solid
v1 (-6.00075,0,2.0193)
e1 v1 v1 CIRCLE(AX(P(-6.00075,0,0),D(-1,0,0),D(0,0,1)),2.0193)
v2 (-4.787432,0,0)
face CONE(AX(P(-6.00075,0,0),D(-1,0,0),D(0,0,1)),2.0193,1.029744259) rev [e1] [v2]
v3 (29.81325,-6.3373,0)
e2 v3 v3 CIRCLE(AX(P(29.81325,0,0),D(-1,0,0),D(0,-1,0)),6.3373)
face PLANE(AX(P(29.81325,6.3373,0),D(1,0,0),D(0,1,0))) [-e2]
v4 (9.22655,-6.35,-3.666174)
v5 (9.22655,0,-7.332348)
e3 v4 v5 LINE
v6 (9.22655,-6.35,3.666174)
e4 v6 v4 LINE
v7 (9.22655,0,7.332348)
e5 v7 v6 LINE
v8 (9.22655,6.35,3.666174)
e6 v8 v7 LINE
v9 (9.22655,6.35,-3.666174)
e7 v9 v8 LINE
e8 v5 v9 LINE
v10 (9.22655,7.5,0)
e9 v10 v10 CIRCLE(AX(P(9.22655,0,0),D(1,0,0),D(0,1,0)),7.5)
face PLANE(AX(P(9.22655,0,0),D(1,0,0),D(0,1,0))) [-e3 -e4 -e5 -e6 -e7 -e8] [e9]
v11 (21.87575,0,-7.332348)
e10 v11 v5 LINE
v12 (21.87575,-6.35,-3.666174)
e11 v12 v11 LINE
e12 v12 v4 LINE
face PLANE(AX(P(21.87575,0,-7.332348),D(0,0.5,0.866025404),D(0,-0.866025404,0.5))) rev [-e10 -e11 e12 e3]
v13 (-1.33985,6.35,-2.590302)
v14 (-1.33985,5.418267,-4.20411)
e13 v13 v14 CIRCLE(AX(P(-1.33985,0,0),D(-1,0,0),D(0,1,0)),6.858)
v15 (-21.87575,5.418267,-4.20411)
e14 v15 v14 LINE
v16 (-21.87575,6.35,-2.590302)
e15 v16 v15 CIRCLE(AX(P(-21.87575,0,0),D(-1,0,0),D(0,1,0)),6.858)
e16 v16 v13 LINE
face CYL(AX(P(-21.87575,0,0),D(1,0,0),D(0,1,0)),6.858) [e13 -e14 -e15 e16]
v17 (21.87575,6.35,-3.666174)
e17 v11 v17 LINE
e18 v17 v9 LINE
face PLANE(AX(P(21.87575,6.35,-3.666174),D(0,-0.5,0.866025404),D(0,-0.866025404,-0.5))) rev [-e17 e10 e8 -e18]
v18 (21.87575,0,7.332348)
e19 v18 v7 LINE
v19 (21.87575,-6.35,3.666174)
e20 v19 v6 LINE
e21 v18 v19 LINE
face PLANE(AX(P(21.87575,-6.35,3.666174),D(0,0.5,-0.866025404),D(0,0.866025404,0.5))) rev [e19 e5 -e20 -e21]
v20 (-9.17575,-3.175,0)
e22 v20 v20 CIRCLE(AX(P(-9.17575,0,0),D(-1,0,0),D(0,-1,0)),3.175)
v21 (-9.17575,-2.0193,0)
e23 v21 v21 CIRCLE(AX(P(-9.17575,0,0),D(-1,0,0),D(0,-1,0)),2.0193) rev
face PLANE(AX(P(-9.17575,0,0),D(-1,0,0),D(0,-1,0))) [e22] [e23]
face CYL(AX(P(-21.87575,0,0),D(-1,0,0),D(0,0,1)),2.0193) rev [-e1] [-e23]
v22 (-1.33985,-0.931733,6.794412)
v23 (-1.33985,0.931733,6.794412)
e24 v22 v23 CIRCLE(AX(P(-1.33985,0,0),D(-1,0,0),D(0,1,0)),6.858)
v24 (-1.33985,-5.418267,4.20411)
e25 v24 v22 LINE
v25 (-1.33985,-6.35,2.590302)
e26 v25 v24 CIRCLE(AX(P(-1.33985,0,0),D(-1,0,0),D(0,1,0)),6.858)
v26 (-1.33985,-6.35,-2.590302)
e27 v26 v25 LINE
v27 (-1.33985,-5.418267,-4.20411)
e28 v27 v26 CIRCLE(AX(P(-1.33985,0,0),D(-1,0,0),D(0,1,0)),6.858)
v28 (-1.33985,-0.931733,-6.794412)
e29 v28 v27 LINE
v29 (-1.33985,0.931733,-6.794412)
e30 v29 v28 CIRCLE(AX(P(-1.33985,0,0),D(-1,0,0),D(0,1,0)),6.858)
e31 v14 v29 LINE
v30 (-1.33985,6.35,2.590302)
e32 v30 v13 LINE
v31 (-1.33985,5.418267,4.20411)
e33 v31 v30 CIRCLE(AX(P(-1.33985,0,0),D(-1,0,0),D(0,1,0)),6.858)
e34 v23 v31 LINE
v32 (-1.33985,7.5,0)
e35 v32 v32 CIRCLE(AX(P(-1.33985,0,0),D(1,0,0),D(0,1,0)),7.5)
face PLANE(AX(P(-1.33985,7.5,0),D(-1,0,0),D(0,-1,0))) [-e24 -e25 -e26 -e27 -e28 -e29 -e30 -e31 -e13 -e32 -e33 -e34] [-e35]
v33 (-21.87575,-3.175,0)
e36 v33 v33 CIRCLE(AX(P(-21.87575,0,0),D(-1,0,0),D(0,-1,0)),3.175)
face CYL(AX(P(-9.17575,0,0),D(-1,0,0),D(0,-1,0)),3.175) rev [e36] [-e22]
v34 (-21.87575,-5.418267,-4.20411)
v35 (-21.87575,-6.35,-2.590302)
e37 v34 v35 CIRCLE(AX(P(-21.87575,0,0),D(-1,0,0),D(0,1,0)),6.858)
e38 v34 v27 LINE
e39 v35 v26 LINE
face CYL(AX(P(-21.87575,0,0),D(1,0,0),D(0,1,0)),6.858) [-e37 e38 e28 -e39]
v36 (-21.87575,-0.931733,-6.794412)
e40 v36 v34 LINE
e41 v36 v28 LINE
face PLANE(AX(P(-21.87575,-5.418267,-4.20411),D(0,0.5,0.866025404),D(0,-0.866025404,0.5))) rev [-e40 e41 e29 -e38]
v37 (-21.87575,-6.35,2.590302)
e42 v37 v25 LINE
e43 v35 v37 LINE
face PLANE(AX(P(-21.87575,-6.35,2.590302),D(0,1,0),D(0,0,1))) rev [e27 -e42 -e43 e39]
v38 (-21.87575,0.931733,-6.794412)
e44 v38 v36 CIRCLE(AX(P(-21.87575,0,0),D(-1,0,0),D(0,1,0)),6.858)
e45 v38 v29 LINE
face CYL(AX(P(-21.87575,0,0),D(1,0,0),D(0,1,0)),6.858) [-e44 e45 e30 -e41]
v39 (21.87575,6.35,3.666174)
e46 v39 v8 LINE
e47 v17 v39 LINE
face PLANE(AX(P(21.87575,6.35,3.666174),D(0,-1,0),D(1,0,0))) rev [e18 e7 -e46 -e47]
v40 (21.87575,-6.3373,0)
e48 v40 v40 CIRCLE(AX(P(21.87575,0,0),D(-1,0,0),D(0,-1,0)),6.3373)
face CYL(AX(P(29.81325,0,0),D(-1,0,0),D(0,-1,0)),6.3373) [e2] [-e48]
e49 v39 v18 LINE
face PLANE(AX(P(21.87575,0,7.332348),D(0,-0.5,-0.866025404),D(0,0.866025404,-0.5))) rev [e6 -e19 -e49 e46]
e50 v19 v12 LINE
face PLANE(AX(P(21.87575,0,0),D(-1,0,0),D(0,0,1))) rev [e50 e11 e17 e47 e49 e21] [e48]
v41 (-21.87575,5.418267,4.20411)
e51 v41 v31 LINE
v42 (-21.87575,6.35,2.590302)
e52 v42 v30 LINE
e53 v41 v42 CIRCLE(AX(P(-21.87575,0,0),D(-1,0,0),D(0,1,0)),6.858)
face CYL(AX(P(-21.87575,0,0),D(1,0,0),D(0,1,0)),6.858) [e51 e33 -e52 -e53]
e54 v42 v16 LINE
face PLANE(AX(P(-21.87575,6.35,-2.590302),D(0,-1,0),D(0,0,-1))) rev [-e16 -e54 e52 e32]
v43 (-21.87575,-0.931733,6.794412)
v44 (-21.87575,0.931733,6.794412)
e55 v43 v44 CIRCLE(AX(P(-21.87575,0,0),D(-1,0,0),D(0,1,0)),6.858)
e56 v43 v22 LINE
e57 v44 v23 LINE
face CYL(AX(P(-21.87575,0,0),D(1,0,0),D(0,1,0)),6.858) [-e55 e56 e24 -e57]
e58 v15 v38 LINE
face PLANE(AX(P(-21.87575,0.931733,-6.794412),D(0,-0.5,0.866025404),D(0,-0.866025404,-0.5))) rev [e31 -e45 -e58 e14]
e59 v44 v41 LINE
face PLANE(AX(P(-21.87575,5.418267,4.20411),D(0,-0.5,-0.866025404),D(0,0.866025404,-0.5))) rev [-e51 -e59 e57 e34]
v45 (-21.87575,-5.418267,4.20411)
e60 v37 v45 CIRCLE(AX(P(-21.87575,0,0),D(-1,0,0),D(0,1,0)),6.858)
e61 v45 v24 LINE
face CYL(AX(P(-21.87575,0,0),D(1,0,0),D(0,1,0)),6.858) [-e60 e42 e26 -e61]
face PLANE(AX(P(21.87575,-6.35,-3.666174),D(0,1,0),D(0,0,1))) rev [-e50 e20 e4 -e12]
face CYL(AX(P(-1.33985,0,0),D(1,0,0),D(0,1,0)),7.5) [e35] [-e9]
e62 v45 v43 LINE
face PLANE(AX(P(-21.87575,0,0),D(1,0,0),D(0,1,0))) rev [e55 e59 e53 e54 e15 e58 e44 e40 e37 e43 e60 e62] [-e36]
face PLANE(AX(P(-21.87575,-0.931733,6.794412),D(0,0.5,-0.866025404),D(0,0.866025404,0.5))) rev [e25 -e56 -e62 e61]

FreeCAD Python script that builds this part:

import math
import FreeCAD as App
import Part
import Sketcher
from FreeCAD import Vector
Q = App.Units.Quantity


def add_polygon(sketch, points):
    """Adds a closed chain of lines whose ends are joined by coincident constraints."""
    first, n = sketch.GeometryCount, len(points)
    for a, b in zip(points, points[1:] + points[:1]):
        sketch.addGeometry(Part.LineSegment(App.Vector(*a, 0), App.Vector(*b, 0)), False)
    for i in range(n):
        sketch.addConstraint(Sketcher.Constraint("Coincident", first + i, 2, first + (i + 1) % n, 1))

doc = App.newDocument("Part")
body = doc.addObject("PartDesign::Body", "Body")

sketch1 = body.newObject("Sketcher::SketchObject", "Sketch")
sketch1.AttachmentSupport = (doc.getObject("XY_Plane"), [""])
sketch1.MapMode = "FlatFace"
add_polygon(sketch1, [(-1, 8), (-1, 0), (9, 0), (9, 8)])
sketch1.addConstraint([
    Sketcher.Constraint("Vertical", 0),
    Sketcher.Constraint("Horizontal", 1),
    Sketcher.Constraint("Vertical", 2),
    Sketcher.Constraint("Horizontal", 3),
    Sketcher.Constraint("PointOnObject", 0, 2, -1),
    Sketcher.Constraint("DistanceX", 1, 1, 1, 2, Q("0.416 in")),
    Sketcher.Constraint("DistanceY", 0, 2, 0, 1, 7.5),
    Sketcher.Constraint("DistanceX", 0, 2, -1, 1, 1.33985),
])
revolution = body.newObject("PartDesign::Revolution", "Revolution")
revolution.Profile = sketch1
revolution.ReferenceAxis = (sketch1, ["H_Axis"])
revolution.Angle = 360

sketch2 = body.newObject("Sketcher::SketchObject", "Sketch001")
sketch2.AttachmentSupport = (doc.getObject("YZ_Plane"), [""])
sketch2.MapMode = "FlatFace"
sketch2.AttachmentOffset = App.Placement(Vector(0, 0, -1.33985), App.Rotation())
sketch2.addGeometry([
    Part.LineSegment(Vector(6.3, 2.6, 0), Vector(6.3, -2.6, 0)),
    Part.ArcOfCircle(Part.Circle(Vector(0, 0, 0), Vector(0, 0, 1), 6.9), math.radians(-37.81), math.radians(-22.19)),
    Part.LineSegment(Vector(5.4, -4.2, 0), Vector(0.9, -6.8, 0)),
    Part.ArcOfCircle(Part.Circle(Vector(0, 0, 0), Vector(0, 0, 1), 6.9), math.radians(-97.81), math.radians(-82.19)),
    Part.LineSegment(Vector(-0.9, -6.8, 0), Vector(-5.4, -4.2, 0)),
    Part.ArcOfCircle(Part.Circle(Vector(0, 0, 0), Vector(0, 0, 1), 6.9), math.radians(-157.81), math.radians(-142.19)),
    Part.LineSegment(Vector(-6.3, -2.6, 0), Vector(-6.3, 2.6, 0)),
    Part.ArcOfCircle(Part.Circle(Vector(0, 0, 0), Vector(0, 0, 1), 6.9), math.radians(142.19), math.radians(157.81)),
    Part.LineSegment(Vector(-5.4, 4.2, 0), Vector(-0.9, 6.8, 0)),
    Part.ArcOfCircle(Part.Circle(Vector(0, 0, 0), Vector(0, 0, 1), 6.9), math.radians(82.19), math.radians(97.81)),
    Part.LineSegment(Vector(0.9, 6.8, 0), Vector(5.4, 4.2, 0)),
    Part.ArcOfCircle(Part.Circle(Vector(0, 0, 0), Vector(0, 0, 1), 6.9), math.radians(22.19), math.radians(37.81)),
], False)
sketch2.addConstraint([
    Sketcher.Constraint("Coincident", 0, 2, 1, 2),
    Sketcher.Constraint("Coincident", 1, 1, 2, 1),
    Sketcher.Constraint("Coincident", 2, 2, 3, 2),
    Sketcher.Constraint("Coincident", 3, 1, 4, 1),
    Sketcher.Constraint("Coincident", 4, 2, 5, 2),
    Sketcher.Constraint("Coincident", 5, 1, 6, 1),
    Sketcher.Constraint("Coincident", 6, 2, 7, 2),
    Sketcher.Constraint("Coincident", 7, 1, 8, 1),
    Sketcher.Constraint("Coincident", 8, 2, 9, 2),
    Sketcher.Constraint("Coincident", 9, 1, 10, 1),
    Sketcher.Constraint("Coincident", 10, 2, 11, 2),
    Sketcher.Constraint("Coincident", 11, 1, 0, 1),
    Sketcher.Constraint("Vertical", 0),
    Sketcher.Constraint("Vertical", 6),
    Sketcher.Constraint("Coincident", 1, 3, -1, 1),
    Sketcher.Constraint("Coincident", 3, 3, -1, 1),
    Sketcher.Constraint("Coincident", 5, 3, -1, 1),
    Sketcher.Constraint("Coincident", 7, 3, -1, 1),
    Sketcher.Constraint("Coincident", 9, 3, -1, 1),
    Sketcher.Constraint("Coincident", 11, 3, -1, 1),
    Sketcher.Constraint("Equal", 1, 3),
    Sketcher.Constraint("Equal", 3, 5),
    Sketcher.Constraint("Equal", 5, 7),
    Sketcher.Constraint("Equal", 7, 9),
    Sketcher.Constraint("Equal", 9, 11),
    Sketcher.Constraint("Parallel", 2, 8),
    Sketcher.Constraint("Parallel", 4, 10),
    Sketcher.Constraint("Horizontal", 2, 2, 3, 1),
    Sketcher.Constraint("Horizontal", 1, 1, 4, 2),
    Sketcher.Constraint("Horizontal", 0, 2, 5, 1),
    Sketcher.Constraint("Horizontal", 8, 2, 9, 1),
    Sketcher.Constraint("Vertical", 4, 2, 7, 1),
    Sketcher.Constraint("Radius", 1, Q("0.27 in")),
    Sketcher.Constraint("Angle", 2, Q("-150 deg")),
    Sketcher.Constraint("DistanceX", -1, 1, 0, 2, Q("0.25 in")),
    Sketcher.Constraint("DistanceX", 3, 1, 1, 1, Q("0.25 in")),
])
pad1 = body.newObject("PartDesign::Pad", "Pad")
pad1.Profile = sketch2
pad1.Length = Q("0.8085 in")
pad1.Reversed = True

sketch3 = body.newObject("Sketcher::SketchObject", "Sketch002")
sketch3.AttachmentSupport = (doc.getObject("YZ_Plane"), [""])
sketch3.MapMode = "FlatFace"
sketch3.AttachmentOffset = App.Placement(Vector(0, 0, 9.22655), App.Rotation())
add_polygon(sketch3, [(-6, 4), (-6, -4), (0, -7), (6, -4), (6, 4), (0, 7)])
sketch3.addConstraint([
    Sketcher.Constraint("Vertical", 0),
    Sketcher.Constraint("Vertical", 3),
    Sketcher.Constraint("Symmetric", 0, 2, 3, 2, -1, 1),
    Sketcher.Constraint("Symmetric", 1, 2, 4, 2, -1, 1),
    Sketcher.Constraint("PointOnObject", 1, 2, -2),
    Sketcher.Constraint("Parallel", 2, 5),
    Sketcher.Constraint("Horizontal", 0, 2, 2, 2),
    Sketcher.Constraint("Angle", 1, Q("-30 deg")),
    Sketcher.Constraint("DistanceX", 0, 2, 2, 2, Q("0.5 in")),
    Sketcher.Constraint("DistanceY", 0, 2, 0, 1, 7.332348),
])
pad2 = body.newObject("PartDesign::Pad", "Pad001")
pad2.Profile = sketch3
pad2.Length = Q("0.498 in")

sketch4 = body.newObject("Sketcher::SketchObject", "Sketch003")
sketch4.AttachmentSupport = (doc.getObject("XY_Plane"), [""])
sketch4.MapMode = "FlatFace"
add_polygon(sketch4, [(30, 6), (30, 0), (22, 0), (22, 6)])
sketch4.addConstraint([
    Sketcher.Constraint("Vertical", 0),
    Sketcher.Constraint("Horizontal", 1),
    Sketcher.Constraint("Vertical", 2),
    Sketcher.Constraint("Horizontal", 3),
    Sketcher.Constraint("PointOnObject", 0, 2, -1),
    Sketcher.Constraint("DistanceX", 1, 2, 1, 1, Q("0.3125 in")),
    Sketcher.Constraint("DistanceY", 0, 2, 0, 1, Q("0.2495 in")),
    Sketcher.Constraint("DistanceX", -1, 1, 0, 2, 29.81325),
])
revolution2 = body.newObject("PartDesign::Revolution", "Revolution001")
revolution2.Profile = sketch4
revolution2.ReferenceAxis = (sketch4, ["H_Axis"])
revolution2.Angle = 360

sketch5 = body.newObject("Sketcher::SketchObject", "Sketch004")
sketch5.AttachmentSupport = (doc.getObject("YZ_Plane"), [""])
sketch5.MapMode = "FlatFace"
sketch5.AttachmentOffset = App.Placement(Vector(0, 0, -21.87575), App.Rotation())
sketch5.addGeometry(Part.Circle(Vector(0, 0, 0), Vector(0, 0, 1), 2), False)
sketch5.addConstraint([
    Sketcher.Constraint("Coincident", 0, 3, -1, 1),
    Sketcher.Constraint("Diameter", 0, Q("0.159 in")),
])
doc.recompute()
hole = body.newObject("PartDesign::Hole", "Hole")
hole.Profile = sketch5
hole.ThreadType = "None"
hole.Diameter = Q("0.159 in")
hole.DepthType = "Dimension"
hole.Depth = Q("0.625 in")
hole.DrillPoint = "Angled"
hole.DrillPointAngle = 118
hole.Reversed = True

sketch6 = body.newObject("Sketcher::SketchObject", "Sketch005")
sketch6.AttachmentSupport = (doc.getObject("YZ_Plane"), [""])
sketch6.MapMode = "FlatFace"
sketch6.AttachmentOffset = App.Placement(Vector(0, 0, -21.87575), App.Rotation())
sketch6.addGeometry(Part.Circle(Vector(0, 0, 0), Vector(0, 0, 1), 3.2), False)
sketch6.addConstraint([
    Sketcher.Constraint("Coincident", 0, 3, -1, 1),
    Sketcher.Constraint("Diameter", 0, Q("0.25 in")),
])
pocket1 = body.newObject("PartDesign::Pocket", "Pocket")
pocket1.Profile = sketch6
pocket1.Length = Q("0.5 in")
pocket1.Reversed = True

doc.recompute()
